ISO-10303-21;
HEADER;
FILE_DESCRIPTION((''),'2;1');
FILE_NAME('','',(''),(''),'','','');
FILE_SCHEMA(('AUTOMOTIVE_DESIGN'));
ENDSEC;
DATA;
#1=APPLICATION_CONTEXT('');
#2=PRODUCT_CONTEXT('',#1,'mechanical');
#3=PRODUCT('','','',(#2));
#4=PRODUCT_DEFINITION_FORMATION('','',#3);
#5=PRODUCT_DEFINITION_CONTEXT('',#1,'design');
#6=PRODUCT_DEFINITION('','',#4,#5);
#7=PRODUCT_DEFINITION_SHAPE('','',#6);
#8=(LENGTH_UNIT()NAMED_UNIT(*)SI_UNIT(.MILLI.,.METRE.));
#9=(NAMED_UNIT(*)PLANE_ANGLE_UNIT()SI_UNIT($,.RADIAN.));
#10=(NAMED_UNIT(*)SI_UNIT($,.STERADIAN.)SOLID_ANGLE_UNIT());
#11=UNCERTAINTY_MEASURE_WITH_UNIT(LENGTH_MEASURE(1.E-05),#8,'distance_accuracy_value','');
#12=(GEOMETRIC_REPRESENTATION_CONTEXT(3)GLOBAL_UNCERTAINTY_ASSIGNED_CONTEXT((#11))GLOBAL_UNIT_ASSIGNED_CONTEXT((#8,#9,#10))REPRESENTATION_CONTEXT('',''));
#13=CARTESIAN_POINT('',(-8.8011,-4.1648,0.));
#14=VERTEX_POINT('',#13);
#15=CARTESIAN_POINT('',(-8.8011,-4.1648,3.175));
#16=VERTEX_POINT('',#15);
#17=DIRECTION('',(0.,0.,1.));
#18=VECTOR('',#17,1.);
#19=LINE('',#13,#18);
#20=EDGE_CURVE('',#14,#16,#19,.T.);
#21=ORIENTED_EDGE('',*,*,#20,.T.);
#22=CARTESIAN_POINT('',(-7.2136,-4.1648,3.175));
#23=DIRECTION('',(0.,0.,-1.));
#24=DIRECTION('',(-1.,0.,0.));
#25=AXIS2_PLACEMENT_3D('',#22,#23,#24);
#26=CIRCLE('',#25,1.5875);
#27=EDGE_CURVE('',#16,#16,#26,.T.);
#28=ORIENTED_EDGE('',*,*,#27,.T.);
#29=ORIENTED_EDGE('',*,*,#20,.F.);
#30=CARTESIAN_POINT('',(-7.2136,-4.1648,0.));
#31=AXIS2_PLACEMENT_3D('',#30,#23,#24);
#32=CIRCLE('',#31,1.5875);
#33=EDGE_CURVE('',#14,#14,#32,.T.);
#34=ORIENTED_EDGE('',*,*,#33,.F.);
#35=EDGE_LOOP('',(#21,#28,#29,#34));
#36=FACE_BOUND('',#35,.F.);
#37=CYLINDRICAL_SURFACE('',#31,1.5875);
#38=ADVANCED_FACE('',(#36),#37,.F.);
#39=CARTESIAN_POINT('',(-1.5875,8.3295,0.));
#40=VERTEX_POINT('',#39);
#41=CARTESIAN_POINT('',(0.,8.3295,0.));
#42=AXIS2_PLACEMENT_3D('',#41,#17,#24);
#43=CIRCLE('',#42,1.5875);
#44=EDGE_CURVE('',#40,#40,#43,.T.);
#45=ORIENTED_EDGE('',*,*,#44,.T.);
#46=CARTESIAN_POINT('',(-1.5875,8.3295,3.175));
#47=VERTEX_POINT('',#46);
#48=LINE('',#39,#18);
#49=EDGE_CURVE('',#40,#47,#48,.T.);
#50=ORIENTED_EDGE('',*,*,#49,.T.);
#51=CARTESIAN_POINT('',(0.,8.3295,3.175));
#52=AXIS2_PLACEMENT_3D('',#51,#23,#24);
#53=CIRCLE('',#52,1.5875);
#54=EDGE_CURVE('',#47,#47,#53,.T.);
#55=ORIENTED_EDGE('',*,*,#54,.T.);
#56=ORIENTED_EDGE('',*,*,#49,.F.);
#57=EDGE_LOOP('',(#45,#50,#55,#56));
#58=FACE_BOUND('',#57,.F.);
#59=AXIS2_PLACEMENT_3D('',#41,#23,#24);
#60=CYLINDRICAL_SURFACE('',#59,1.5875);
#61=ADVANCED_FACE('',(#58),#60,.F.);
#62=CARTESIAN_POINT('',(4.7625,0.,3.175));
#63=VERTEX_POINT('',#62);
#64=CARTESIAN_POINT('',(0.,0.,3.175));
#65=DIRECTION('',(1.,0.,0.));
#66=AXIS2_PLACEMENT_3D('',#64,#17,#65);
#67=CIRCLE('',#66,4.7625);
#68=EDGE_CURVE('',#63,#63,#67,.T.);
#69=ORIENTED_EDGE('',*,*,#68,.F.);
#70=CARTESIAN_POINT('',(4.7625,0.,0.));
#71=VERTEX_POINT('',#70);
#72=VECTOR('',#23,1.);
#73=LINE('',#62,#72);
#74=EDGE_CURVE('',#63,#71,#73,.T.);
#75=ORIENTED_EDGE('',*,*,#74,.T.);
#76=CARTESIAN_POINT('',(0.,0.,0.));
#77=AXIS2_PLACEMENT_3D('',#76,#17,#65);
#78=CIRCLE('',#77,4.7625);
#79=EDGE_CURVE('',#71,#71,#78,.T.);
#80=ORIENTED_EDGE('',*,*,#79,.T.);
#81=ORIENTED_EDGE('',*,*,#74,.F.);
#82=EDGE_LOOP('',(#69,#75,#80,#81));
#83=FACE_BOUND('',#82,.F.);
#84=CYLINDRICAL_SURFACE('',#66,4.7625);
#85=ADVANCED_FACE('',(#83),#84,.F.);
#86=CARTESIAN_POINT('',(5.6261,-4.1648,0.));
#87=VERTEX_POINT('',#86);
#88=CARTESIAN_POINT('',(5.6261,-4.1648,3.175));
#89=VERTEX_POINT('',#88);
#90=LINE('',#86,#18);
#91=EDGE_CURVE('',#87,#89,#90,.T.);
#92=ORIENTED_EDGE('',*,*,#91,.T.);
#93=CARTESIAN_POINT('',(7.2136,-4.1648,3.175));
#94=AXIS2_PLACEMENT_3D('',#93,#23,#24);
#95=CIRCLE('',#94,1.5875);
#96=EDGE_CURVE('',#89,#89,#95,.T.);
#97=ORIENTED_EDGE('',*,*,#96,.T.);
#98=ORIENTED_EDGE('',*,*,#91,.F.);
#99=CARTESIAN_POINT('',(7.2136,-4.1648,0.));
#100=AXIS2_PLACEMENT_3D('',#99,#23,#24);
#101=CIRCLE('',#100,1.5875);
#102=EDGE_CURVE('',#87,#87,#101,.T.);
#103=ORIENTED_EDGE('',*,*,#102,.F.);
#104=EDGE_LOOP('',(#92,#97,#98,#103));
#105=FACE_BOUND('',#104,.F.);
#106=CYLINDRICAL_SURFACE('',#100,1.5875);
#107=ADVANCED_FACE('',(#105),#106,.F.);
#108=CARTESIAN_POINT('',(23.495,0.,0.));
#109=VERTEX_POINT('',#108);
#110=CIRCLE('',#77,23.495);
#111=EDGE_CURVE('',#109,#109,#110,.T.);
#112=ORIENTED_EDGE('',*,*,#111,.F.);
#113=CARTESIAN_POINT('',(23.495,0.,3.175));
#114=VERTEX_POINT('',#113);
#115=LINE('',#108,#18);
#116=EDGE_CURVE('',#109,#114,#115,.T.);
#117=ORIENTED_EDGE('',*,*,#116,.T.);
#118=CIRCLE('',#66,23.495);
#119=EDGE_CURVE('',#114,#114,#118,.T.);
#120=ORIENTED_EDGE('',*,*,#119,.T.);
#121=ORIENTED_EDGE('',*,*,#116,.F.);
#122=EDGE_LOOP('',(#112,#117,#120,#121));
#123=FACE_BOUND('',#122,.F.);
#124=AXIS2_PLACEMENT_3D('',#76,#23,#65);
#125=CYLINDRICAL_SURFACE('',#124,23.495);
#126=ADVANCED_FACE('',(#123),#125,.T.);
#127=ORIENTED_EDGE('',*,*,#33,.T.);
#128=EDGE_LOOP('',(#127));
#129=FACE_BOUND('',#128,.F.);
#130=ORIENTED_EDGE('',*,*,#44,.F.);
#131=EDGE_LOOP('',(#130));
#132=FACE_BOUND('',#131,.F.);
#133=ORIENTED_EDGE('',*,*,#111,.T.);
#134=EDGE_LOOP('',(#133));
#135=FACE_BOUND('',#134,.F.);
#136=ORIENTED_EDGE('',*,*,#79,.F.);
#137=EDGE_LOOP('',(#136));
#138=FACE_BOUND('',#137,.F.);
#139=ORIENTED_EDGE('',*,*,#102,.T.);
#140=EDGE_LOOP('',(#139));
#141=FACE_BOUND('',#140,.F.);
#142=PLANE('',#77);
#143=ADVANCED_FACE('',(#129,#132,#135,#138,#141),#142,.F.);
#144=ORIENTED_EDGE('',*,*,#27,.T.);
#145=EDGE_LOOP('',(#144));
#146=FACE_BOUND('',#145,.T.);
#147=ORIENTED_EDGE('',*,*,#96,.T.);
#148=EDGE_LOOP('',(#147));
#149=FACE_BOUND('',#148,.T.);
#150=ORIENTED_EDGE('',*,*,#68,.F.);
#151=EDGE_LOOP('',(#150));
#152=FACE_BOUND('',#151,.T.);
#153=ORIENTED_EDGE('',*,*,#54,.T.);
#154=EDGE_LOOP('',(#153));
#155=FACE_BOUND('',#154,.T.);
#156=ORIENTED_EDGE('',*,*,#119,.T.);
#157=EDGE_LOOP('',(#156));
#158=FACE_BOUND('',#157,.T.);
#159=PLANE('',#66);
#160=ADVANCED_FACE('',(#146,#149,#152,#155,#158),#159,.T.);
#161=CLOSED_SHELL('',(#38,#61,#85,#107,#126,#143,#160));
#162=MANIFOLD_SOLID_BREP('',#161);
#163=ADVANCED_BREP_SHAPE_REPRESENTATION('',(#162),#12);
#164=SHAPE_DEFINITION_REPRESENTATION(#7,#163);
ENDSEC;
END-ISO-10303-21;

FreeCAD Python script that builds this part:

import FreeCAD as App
import Part
import Sketcher
Q = App.Units.Quantity

doc = App.newDocument("Part")
body = doc.addObject("PartDesign::Body", "Body")

sketch1 = body.newObject("Sketcher::SketchObject", "Sketch")
sketch1.AttachmentSupport = (doc.getObject("XY_Plane"), [""])
sketch1.MapMode = "FlatFace"
sketch1.addGeometry(Part.Circle(App.Vector(0, 0, 0), App.Vector(0, 0, 1), 23), False)
sketch1.addConstraint(Sketcher.Constraint("Coincident", 0, 3, -1, 1))
sketch1.addConstraint(Sketcher.Constraint("Diameter", 0, Q("1.85 in")))
pad1 = body.newObject("PartDesign::Pad", "Pad")
pad1.Profile = sketch1
pad1.Length = Q("0.125 in")

sketch2 = body.newObject("Sketcher::SketchObject", "Sketch001")
sketch2.AttachmentSupport = (doc.getObject("XY_Plane"), [""])
sketch2.MapMode = "FlatFace"
sketch2.addGeometry(Part.Circle(App.Vector(0, 8.3, 0), App.Vector(0, 0, 1), 1.6), False)
sketch2.addGeometry(Part.Circle(App.Vector(7.2, -4.2, 0), App.Vector(0, 0, 1), 1.6), False)
sketch2.addGeometry(Part.Circle(App.Vector(-7.2, -4.2, 0), App.Vector(0, 0, 1), 1.6), False)
sketch2.addConstraint(Sketcher.Constraint("Equal", 0, 1))
sketch2.addConstraint(Sketcher.Constraint("Equal", 1, 2))
sketch2.addConstraint(Sketcher.Constraint("Symmetric", 1, 3, 2, 3, -2))
sketch2.addConstraint(Sketcher.Constraint("PointOnObject", 0, 3, -2))
sketch2.addConstraint(Sketcher.Constraint("Diameter", 0, Q("0.125 in")))
sketch2.addConstraint(Sketcher.Constraint("DistanceX", 2, 3, 1, 3, Q("0.568 in")))
sketch2.addConstraint(Sketcher.Constraint("DistanceY", 1, 3, 0, 3, Q("0.4919 in")))
sketch2.addConstraint(Sketcher.Constraint("DistanceY", -1, 1, 0, 3, Q("8.3295 mm")))
pocket1 = body.newObject("PartDesign::Pocket", "Pocket")
pocket1.Profile = sketch2
pocket1.Length = Q("0.125 in")
pocket1.Reversed = True

sketch3 = body.newObject("Sketcher::SketchObject", "Sketch002")
sketch3.AttachmentSupport = (doc.getObject("XY_Plane"), [""])
sketch3.MapMode = "FlatFace"
sketch3.AttachmentOffset = App.Placement(App.Vector(0, 0, 0.125 * 25.4), App.Rotation())
sketch3.addGeometry(Part.Circle(App.Vector(0, 0, 0), App.Vector(0, 0, 1), 4.8), False)
sketch3.addConstraint(Sketcher.Constraint("Coincident", 0, 3, -1, 1))
sketch3.addConstraint(Sketcher.Constraint("Diameter", 0, Q("0.375 in")))
pocket2 = body.newObject("PartDesign::Pocket", "Pocket001")
pocket2.Profile = sketch3
pocket2.Length = Q("0.125 in")

doc.recompute()
